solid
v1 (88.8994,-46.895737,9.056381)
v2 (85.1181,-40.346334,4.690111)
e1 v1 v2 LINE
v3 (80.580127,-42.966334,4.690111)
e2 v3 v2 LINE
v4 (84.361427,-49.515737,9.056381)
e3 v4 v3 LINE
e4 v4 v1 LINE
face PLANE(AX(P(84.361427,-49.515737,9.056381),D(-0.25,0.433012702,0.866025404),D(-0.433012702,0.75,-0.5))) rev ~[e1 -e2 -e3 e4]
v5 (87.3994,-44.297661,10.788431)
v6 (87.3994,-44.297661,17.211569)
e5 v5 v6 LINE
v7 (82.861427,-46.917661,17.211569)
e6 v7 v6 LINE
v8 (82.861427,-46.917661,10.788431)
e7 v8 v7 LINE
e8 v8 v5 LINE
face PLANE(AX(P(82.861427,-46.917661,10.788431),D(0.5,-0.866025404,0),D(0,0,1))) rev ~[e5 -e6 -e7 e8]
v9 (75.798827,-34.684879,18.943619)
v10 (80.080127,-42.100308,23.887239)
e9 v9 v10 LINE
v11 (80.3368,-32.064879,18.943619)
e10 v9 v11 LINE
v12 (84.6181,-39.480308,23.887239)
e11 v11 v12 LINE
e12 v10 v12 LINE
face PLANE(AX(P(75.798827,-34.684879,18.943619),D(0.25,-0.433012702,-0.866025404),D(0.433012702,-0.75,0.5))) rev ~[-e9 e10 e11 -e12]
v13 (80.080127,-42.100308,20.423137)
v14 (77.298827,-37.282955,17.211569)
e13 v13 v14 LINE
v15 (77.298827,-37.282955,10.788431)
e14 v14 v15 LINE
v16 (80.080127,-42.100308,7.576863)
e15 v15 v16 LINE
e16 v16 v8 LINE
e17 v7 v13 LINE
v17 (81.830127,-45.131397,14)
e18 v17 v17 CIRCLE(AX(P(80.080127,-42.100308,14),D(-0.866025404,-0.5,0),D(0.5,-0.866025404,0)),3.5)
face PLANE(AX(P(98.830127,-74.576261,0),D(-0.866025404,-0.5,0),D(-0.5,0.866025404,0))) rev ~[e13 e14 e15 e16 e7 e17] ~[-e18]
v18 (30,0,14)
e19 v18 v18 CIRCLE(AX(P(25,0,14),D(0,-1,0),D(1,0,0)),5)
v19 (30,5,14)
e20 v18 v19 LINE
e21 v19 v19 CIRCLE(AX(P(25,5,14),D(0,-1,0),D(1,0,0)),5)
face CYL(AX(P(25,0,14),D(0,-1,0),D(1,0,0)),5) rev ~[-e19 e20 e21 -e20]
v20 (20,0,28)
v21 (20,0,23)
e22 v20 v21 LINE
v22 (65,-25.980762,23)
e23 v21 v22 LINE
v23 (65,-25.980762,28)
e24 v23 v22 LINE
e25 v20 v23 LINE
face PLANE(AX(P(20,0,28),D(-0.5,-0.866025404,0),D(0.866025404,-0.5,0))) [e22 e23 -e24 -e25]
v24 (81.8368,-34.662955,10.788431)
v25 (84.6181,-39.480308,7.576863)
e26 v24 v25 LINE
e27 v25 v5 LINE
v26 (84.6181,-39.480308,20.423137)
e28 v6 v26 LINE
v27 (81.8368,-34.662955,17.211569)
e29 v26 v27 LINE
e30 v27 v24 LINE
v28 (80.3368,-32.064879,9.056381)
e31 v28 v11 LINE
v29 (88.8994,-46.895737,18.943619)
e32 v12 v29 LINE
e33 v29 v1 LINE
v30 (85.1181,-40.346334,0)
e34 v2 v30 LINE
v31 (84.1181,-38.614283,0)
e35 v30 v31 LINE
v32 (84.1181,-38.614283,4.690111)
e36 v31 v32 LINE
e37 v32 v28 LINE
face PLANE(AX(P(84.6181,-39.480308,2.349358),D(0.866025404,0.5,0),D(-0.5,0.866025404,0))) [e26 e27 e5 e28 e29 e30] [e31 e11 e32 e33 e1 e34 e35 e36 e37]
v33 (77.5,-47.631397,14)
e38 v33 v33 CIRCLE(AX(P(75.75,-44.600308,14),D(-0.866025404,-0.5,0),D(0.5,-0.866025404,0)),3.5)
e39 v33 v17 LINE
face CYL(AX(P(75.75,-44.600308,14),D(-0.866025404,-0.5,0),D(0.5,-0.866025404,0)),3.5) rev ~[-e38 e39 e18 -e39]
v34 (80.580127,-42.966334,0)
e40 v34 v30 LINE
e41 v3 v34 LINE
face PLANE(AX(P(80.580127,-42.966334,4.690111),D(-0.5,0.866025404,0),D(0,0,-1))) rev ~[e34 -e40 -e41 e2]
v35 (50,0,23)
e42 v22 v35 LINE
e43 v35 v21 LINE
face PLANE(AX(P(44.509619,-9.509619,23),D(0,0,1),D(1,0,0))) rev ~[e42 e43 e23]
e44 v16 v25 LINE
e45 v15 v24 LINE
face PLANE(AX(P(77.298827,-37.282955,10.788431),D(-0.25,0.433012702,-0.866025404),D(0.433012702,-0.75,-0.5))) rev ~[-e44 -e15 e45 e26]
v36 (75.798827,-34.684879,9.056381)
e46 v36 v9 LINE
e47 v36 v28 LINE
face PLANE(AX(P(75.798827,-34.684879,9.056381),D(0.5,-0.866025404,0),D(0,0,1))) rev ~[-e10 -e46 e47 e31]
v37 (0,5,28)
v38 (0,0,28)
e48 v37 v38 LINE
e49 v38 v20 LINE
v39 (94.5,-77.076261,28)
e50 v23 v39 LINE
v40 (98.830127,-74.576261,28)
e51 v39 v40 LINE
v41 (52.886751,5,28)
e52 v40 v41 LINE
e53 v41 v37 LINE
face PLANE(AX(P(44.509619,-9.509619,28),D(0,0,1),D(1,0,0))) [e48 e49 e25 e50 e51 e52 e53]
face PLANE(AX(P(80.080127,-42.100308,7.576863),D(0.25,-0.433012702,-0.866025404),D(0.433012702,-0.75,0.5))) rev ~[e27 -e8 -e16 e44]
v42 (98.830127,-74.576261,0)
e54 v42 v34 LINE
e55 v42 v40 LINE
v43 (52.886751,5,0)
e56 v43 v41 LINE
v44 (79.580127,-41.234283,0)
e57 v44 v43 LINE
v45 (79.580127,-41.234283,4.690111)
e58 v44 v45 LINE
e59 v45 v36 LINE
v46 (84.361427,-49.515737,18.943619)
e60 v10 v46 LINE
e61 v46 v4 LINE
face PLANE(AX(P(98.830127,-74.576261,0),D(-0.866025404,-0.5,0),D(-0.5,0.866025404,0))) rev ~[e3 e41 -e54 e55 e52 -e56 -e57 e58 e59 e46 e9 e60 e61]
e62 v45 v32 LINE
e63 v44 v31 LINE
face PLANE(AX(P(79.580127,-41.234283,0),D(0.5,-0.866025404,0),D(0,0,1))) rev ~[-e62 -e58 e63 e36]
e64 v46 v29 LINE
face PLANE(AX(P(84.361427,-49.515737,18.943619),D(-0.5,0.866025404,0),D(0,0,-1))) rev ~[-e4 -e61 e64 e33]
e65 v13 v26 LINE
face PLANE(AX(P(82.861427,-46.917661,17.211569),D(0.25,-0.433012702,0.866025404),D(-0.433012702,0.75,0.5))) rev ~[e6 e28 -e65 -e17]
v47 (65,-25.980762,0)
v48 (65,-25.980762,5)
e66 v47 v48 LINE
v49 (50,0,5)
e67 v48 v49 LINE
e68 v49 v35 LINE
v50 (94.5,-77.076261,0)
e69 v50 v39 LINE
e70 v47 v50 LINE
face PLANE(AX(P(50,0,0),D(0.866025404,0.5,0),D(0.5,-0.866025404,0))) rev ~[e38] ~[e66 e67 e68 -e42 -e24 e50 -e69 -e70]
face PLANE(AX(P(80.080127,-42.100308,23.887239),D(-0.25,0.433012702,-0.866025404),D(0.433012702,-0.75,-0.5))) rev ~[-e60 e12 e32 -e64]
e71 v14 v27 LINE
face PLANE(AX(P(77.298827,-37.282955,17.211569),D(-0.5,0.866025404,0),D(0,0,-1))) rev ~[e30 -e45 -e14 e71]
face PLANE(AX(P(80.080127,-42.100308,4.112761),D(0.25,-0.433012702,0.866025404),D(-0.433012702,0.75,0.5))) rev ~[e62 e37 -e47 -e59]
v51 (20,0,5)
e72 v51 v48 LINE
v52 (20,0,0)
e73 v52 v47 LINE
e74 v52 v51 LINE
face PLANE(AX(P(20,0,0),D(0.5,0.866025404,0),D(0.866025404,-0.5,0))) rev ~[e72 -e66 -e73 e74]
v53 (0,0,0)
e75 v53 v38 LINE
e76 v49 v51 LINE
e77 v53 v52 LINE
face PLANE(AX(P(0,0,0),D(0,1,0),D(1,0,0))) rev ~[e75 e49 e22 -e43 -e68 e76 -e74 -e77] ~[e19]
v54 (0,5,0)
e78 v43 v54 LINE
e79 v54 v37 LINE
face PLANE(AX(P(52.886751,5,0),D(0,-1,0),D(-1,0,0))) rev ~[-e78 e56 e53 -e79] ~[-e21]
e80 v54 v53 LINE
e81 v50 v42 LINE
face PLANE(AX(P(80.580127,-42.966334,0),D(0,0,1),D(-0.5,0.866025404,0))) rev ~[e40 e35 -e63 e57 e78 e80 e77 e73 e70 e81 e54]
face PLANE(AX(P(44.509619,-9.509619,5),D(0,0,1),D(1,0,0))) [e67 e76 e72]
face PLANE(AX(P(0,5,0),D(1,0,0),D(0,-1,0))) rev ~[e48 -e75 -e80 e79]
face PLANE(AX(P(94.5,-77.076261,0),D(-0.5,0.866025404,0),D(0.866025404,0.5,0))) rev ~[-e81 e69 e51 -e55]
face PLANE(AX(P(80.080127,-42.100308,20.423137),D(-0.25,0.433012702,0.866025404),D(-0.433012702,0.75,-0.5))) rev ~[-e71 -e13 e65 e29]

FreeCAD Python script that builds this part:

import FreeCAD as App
import Part
import Sketcher
Q = App.Units.Quantity


def add_polygon(sketch, points):
    """Adds a closed chain of lines whose ends are joined by coincident constraints."""
    first, n = sketch.GeometryCount, len(points)
    for a, b in zip(points, points[1:] + points[:1]):
        sketch.addGeometry(Part.LineSegment(App.Vector(*a, 0), App.Vector(*b, 0)), False)
    for i in range(n):
        sketch.addConstraint(Sketcher.Constraint("Coincident", first + i, 2, first + (i + 1) % n, 1))

doc = App.newDocument("Part")
body = doc.addObject("PartDesign::Body", "Body")

# Sketch on XY plane
sketch1 = body.newObject("Sketcher::SketchObject", "Sketch")
sketch1.AttachmentSupport = (doc.getObject("XY_Plane"), [""])
sketch1.MapMode = "FlatFace"
add_polygon(sketch1, [(53, 5), (0, 5), (0, 0), (50, 0), (94, -77), (99, -75)])  # lines 0-5
sketch1.addConstraint([
    Sketcher.Constraint("Horizontal", 0),
    Sketcher.Constraint("Vertical", 1),
    Sketcher.Constraint("Horizontal", 2),
    Sketcher.Constraint("Coincident", 1, 2, -1, 1),
    Sketcher.Constraint("Perpendicular", 3, 4),
    Sketcher.Constraint("Perpendicular", 4, 5),
    Sketcher.Constraint("DistanceX", 2, 1, 2, 2, 50.0),
    Sketcher.Constraint("DistanceY", 1, 2, 1, 1, 5.0),
    Sketcher.Constraint("Angle", 3, Q("-60 deg")),
    Sketcher.Constraint("Distance", 3, 89.0),
    Sketcher.Constraint("Distance", 4, 5.0),
])
pad1 = body.newObject("PartDesign::Pad", "Pad")
pad1.Profile = sketch1
pad1.Length = 28

# Sketch on XZ plane
sketch2 = body.newObject("Sketcher::SketchObject", "Sketch001")
sketch2.AttachmentSupport = (doc.getObject("XZ_Plane"), [""])
sketch2.MapMode = "FlatFace"
sketch2.addGeometry(Part.Circle(App.Vector(25, 14, 0), App.Vector(0, 0, 1), 5), False)
sketch2.addConstraint([
    Sketcher.Constraint("Diameter", 0, 10.0),
    Sketcher.Constraint("DistanceX", -1, 1, 0, 3, 25.0),
    Sketcher.Constraint("DistanceY", -1, 1, 0, 3, 14.0),
])
pocket1 = body.newObject("PartDesign::Pocket", "Pocket")
pocket1.Profile = sketch2
pocket1.Type = "ThroughAll"

# Sketch on an angled plane
sketch3 = body.newObject("Sketcher::SketchObject", "Sketch002")
sketch3.Placement = App.Placement(App.Vector(37.5, 21.650635, 0), App.Rotation(App.Vector(0.5, -0.866025404, 0), App.Vector(0, 0, 1), App.Vector(-0.866025404, -0.5, 0), "ZXY"))
sketch3.addGeometry(Part.Circle(App.Vector(76.5, 14, 0), App.Vector(0, 0, 1), 3.5), False)
sketch3.addConstraint([
    Sketcher.Constraint("Diameter", 0, 7.0),
    Sketcher.Constraint("DistanceY", -1, 1, 0, 3, 14.0),
    Sketcher.Constraint("DistanceX", -1, 1, 0, 3, 76.5),
])
pocket2 = body.newObject("PartDesign::Pocket", "Pocket001")
pocket2.Profile = sketch3
pocket2.Type = "ThroughAll"

# Sketch on XY plane
sketch4 = body.newObject("Sketcher::SketchObject", "Sketch003")
sketch4.AttachmentSupport = (doc.getObject("XY_Plane"), [""])
sketch4.MapMode = "FlatFace"
add_polygon(sketch4, [(50, 0), (20, 0), (65, -26)])  # lines 0-2
sketch4.addConstraint([
    Sketcher.Constraint("Horizontal", 0),
    Sketcher.Constraint("PointOnObject", 0, 2, -1),
    Sketcher.Constraint("DistanceX", 0, 2, 0, 1, 30.0),
    Sketcher.Constraint("Angle", 1, Q("-30 deg")),
    Sketcher.Constraint("Angle", 2, Q("120 deg")),
    Sketcher.Constraint("DistanceX", -1, 1, 0, 2, 20.0),
])
pad2 = body.newObject("PartDesign::Pad", "Pad001")
pad2.Profile = sketch4
pad2.Length = 5

# Sketch on XY plane
sketch5 = body.newObject("Sketcher::SketchObject", "Sketch004")
sketch5.AttachmentSupport = (doc.getObject("XY_Plane"), [""])
sketch5.MapMode = "FlatFace"
sketch5.AttachmentOffset = App.Placement(App.Vector(0, 0, 28), App.Rotation())
add_polygon(sketch5, [(65, -26), (50, 0), (20, 0)])  # lines 0-2
sketch5.addConstraint([
    Sketcher.Constraint("Horizontal", 1),
    Sketcher.Constraint("PointOnObject", 0, 2, -1),
    Sketcher.Constraint("DistanceX", 1, 2, 1, 1, 30.0),
    Sketcher.Constraint("Angle", 0, Q("120 deg")),
    Sketcher.Constraint("Angle", 2, Q("-30 deg")),
    Sketcher.Constraint("DistanceX", -1, 1, 0, 2, 50.0),
])
pad3 = body.newObject("PartDesign::Pad", "Pad002")
pad3.Profile = sketch5
pad3.Length = 5
pad3.Reversed = True

# Sketch on an angled plane
sketch6 = body.newObject("Sketcher::SketchObject", "Sketch005")
sketch6.Placement = App.Placement(App.Vector(41.830127, 24.150635, 0), App.Rotation(App.Vector(-0.5, 0.866025404, 0), App.Vector(0, 0, 1), App.Vector(0.866025404, 0.5, 0), "ZXY"))
add_polygon(sketch6, [(-85, 19), (-85, 9), (-77, 4), (-68, 9), (-68, 19), (-77, 24)])  # lines 0-5
add_polygon(sketch6, [(-82, 17), (-77, 20), (-71, 17), (-71, 11), (-77, 8), (-82, 11)])  # lines 6-11
sketch6.addConstraint([
    Sketcher.Constraint("Vertical", 0),
    Sketcher.Constraint("Vertical", 3),
    Sketcher.Constraint("Vertical", 8),
    Sketcher.Constraint("Vertical", 11),
    Sketcher.Constraint("Parallel", 1, 4),
    Sketcher.Constraint("Parallel", 2, 5),
    Sketcher.Constraint("Parallel", 5, 6),
    Sketcher.Constraint("Parallel", 4, 7),
    Sketcher.Constraint("Parallel", 6, 9),
    Sketcher.Constraint("Parallel", 7, 10),
    Sketcher.Constraint("Horizontal", 0, 2, 2, 2),
    Sketcher.Constraint("Horizontal", 3, 2, 5, 2),
    Sketcher.Constraint("Horizontal", 8, 2, 10, 2),
    Sketcher.Constraint("Horizontal", 7, 2, 11, 2),
    Sketcher.Constraint("Vertical", 1, 2, 4, 2),
    Sketcher.Constraint("Vertical", 4, 2, 6, 2),
    Sketcher.Constraint("Angle", 1, Q("-30 deg")),
    Sketcher.Constraint("DistanceX", 7, 2, 3, 2, 3.0),
    Sketcher.Constraint("DistanceX", 1, 2, -1, 1, 76.5),
    Sketcher.Constraint("DistanceY", 0, 2, 0, 1, 9.887239),
    Sketcher.Constraint("DistanceX", 0, 2, -1, 1, 85.0626),
    Sketcher.Constraint("DistanceY", 6, 2, 4, 2, 3.464102),
    Sketcher.Constraint("DistanceY", 1, 2, 9, 2, 3.464102),
    Sketcher.Constraint("DistanceY", -1, 1, 0, 2, 9.056381),
])
pad4 = body.newObject("PartDesign::Pad", "Pad003")
pad4.Profile = sketch6
pad4.Length = 5.24

# Sketch on an angled plane
sketch7 = body.newObject("Sketcher::SketchObject", "Sketch006")
sketch7.Placement = App.Placement(App.Vector(41.830127, 24.150635, 0), App.Rotation(App.Vector(-0.5, 0.866025404, 0), App.Vector(0, 0, 1), App.Vector(0.866025404, 0.5, 0), "ZXY"))
add_polygon(sketch7, [(-75.5, 0), (-75.5, 4.7), (-76.5, 4.1), (-77.5, 4.7), (-77.5, 0)])  # lines 0-4
sketch7.addConstraint([
    Sketcher.Constraint("Vertical", 0),
    Sketcher.Constraint("Vertical", 3),
    Sketcher.Constraint("Horizontal", 4),
    Sketcher.Constraint("PointOnObject", 3, 2, -1),
    Sketcher.Constraint("Horizontal", 0, 2, 2, 2),
    Sketcher.Constraint("Equal", 1, 2),
    Sketcher.Constraint("DistanceX", 4, 1, 4, 2, 2.0),
    Sketcher.Constraint("Angle", 1, Q("-150 deg")),
    Sketcher.Constraint("DistanceX", 0, 2, -1, 1, 75.5),
    Sketcher.Constraint("DistanceY", 0, 1, 0, 2, 4.690111),
])
pad5 = body.newObject("PartDesign::Pad", "Pad004")
pad5.Profile = sketch7
pad5.Length = 5.24

doc.recompute()
